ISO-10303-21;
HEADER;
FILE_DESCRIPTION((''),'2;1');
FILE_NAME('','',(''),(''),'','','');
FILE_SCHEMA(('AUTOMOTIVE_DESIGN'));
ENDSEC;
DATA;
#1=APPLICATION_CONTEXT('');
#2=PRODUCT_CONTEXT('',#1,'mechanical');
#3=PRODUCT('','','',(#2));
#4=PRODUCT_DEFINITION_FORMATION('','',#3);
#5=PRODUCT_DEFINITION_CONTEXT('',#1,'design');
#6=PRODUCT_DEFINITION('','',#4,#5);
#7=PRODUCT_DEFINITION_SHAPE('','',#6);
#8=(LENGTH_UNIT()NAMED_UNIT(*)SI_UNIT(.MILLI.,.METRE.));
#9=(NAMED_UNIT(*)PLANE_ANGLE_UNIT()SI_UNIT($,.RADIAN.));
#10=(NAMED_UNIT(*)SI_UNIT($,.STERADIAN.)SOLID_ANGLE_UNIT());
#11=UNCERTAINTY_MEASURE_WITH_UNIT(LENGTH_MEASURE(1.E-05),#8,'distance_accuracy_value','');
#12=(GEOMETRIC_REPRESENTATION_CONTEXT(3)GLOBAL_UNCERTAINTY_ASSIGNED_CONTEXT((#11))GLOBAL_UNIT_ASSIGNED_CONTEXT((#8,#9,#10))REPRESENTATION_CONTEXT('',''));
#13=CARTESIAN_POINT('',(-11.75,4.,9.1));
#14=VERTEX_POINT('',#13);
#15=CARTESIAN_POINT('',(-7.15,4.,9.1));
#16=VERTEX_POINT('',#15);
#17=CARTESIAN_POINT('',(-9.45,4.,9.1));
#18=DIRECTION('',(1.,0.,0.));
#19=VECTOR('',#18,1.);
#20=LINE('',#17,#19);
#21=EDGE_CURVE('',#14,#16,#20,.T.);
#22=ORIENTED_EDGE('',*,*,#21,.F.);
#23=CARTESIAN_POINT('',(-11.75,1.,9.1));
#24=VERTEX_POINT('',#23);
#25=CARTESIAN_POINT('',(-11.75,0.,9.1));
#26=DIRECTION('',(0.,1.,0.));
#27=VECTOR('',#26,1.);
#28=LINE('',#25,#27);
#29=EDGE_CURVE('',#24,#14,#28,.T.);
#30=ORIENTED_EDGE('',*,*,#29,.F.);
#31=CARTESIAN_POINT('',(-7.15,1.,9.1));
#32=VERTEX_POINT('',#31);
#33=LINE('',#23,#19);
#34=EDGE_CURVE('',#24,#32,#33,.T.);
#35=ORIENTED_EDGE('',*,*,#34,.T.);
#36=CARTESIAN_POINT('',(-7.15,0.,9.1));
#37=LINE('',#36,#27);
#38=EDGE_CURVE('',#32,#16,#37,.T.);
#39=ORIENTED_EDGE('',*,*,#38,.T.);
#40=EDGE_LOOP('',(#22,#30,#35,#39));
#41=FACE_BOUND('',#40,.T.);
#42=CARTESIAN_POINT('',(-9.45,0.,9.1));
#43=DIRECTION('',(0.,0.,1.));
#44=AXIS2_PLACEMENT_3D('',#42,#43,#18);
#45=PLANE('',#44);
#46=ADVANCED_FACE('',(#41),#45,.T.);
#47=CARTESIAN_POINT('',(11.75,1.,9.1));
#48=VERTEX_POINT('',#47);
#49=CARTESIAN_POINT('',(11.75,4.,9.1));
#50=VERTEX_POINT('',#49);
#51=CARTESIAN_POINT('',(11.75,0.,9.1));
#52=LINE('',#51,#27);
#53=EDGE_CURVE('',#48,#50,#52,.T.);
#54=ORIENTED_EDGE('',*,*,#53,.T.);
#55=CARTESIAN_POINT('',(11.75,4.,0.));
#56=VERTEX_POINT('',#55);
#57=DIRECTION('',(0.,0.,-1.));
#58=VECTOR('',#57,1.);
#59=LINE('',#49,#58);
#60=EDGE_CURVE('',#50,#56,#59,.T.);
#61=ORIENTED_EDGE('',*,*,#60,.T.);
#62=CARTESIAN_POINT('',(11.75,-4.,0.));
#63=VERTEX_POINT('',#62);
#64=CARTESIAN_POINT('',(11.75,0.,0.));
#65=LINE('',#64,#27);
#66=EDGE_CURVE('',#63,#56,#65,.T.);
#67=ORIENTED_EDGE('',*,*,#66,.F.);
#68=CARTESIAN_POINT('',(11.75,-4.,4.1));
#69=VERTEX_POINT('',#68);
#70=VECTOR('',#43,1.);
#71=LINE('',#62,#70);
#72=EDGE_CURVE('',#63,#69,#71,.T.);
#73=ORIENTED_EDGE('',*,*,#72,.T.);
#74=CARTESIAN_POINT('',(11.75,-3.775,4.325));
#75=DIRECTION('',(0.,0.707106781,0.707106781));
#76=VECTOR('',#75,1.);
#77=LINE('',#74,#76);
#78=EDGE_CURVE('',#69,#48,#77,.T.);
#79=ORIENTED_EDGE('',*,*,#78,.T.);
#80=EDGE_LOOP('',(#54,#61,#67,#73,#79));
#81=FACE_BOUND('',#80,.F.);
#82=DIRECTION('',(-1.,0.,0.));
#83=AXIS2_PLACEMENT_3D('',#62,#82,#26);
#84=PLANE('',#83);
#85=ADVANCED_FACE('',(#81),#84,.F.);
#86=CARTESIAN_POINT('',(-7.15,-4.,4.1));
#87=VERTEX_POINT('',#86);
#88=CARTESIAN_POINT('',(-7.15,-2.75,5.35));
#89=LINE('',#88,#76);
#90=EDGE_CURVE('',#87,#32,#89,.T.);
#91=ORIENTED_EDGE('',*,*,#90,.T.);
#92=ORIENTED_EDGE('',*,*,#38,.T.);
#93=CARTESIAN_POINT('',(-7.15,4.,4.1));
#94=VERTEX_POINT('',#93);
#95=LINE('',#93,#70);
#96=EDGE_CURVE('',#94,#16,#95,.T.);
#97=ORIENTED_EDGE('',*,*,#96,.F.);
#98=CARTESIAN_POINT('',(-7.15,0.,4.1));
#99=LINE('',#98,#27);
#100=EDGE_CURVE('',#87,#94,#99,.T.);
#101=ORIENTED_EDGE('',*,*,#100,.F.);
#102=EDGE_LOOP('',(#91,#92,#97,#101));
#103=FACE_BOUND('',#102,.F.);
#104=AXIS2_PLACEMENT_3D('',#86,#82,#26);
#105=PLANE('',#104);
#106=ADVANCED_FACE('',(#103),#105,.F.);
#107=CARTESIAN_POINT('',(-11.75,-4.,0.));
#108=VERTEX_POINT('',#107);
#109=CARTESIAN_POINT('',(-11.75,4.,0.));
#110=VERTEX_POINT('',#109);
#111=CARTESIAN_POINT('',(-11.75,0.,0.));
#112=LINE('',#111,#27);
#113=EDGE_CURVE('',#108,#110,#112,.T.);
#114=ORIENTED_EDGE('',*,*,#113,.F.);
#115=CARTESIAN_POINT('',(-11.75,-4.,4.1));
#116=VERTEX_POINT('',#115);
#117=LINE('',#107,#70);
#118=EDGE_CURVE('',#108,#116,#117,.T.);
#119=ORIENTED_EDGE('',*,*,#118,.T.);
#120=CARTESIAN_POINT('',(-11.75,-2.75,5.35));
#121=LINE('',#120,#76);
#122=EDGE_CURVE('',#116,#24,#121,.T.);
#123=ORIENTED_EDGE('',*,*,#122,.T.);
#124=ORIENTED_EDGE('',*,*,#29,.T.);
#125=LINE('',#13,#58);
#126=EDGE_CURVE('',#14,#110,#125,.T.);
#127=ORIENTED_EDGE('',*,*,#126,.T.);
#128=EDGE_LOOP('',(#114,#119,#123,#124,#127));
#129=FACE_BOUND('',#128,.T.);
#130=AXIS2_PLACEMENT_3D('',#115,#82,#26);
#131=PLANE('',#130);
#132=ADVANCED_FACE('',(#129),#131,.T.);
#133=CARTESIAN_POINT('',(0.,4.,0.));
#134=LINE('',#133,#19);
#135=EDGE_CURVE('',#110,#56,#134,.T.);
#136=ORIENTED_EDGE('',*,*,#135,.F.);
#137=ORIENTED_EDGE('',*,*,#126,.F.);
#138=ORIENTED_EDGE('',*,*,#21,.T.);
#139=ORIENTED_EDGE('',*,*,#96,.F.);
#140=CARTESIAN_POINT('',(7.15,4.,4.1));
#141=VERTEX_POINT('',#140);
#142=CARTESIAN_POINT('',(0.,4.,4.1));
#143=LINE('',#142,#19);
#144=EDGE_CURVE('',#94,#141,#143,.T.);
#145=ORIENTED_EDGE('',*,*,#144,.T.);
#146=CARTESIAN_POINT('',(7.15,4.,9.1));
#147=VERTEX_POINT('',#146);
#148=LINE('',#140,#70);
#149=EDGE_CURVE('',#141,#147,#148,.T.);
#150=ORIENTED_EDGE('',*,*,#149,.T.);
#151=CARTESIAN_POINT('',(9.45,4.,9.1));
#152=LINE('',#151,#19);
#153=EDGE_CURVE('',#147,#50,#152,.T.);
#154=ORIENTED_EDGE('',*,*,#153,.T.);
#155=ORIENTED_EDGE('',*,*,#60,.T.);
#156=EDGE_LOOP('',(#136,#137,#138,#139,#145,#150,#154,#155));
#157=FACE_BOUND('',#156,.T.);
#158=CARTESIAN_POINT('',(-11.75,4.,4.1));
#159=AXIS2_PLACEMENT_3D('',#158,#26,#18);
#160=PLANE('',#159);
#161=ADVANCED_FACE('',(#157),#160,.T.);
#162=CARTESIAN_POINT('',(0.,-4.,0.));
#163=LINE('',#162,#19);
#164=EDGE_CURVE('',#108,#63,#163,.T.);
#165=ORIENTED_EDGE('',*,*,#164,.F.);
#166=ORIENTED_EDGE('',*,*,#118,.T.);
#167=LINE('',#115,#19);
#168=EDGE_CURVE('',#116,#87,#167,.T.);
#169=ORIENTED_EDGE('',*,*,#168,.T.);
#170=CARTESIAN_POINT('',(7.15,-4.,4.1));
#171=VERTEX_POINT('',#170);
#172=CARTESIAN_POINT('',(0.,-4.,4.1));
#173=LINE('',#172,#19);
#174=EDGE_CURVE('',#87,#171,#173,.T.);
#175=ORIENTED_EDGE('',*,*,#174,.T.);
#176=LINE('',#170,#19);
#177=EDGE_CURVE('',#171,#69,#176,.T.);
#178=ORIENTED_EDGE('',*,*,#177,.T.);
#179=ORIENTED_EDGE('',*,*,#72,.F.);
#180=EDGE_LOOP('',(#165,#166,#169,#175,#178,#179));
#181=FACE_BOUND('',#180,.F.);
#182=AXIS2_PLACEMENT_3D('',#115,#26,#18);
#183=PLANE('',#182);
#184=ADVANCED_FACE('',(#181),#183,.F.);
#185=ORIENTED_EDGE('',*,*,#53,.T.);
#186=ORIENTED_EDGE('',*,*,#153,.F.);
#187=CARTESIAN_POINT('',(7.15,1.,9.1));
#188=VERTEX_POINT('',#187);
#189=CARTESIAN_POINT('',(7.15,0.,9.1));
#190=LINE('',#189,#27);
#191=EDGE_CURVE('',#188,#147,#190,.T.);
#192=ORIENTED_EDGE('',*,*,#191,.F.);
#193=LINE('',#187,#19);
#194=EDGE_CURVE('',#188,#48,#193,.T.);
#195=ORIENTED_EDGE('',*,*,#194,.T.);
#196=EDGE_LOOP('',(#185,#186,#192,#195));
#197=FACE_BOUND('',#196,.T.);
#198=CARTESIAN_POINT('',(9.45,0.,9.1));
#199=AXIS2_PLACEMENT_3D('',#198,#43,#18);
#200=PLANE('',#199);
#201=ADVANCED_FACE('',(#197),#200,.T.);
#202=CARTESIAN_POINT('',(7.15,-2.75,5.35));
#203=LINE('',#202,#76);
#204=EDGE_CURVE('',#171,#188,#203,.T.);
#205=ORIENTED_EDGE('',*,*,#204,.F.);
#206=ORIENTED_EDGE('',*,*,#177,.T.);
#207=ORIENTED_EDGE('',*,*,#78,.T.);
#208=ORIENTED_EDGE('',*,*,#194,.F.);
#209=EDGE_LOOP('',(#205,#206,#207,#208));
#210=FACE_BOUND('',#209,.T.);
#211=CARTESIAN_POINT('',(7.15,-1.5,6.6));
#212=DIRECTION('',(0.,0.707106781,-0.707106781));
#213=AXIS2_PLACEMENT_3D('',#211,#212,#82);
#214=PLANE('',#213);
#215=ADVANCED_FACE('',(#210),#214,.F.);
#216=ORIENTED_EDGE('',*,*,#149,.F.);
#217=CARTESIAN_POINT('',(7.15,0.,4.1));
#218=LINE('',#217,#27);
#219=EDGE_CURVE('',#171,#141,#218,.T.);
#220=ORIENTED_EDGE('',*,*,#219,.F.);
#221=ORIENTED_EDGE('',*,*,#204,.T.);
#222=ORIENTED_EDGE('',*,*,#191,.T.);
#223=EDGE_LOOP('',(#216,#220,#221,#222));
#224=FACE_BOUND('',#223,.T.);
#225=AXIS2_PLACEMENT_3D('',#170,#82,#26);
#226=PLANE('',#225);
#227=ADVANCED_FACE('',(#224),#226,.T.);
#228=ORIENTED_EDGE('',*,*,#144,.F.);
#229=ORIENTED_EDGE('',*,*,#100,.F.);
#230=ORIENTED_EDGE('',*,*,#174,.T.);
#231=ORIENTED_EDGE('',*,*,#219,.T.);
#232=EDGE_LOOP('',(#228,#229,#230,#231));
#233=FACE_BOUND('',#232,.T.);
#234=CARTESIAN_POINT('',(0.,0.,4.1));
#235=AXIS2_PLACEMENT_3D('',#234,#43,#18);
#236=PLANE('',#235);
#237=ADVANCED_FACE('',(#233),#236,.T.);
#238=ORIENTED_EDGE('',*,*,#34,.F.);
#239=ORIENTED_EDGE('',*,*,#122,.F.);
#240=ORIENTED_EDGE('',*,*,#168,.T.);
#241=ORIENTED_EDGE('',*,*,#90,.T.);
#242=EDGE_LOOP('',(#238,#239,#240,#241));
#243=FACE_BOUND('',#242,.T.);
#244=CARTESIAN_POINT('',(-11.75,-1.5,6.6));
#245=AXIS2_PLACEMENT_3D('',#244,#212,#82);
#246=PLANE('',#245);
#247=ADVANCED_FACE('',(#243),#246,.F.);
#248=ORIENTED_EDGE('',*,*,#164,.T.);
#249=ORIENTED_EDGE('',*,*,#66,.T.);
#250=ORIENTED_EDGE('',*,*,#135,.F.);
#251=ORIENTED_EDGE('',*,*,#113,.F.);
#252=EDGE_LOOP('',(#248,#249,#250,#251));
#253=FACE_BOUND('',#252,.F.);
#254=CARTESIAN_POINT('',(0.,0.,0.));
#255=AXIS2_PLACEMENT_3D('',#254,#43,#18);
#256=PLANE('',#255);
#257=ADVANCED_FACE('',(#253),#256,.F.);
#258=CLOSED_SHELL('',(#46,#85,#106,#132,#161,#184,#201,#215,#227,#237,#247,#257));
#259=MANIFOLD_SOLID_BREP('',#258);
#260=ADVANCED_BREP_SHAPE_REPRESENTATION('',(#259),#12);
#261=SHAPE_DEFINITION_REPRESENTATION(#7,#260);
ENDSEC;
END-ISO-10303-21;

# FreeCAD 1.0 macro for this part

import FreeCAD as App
import Part
import Sketcher

V = App.Vector
Q = App.Units.Quantity


def edges_at(feature, points):
    """Names of the edges that pass closest to the given points."""
    edges = feature.Shape.Edges
    near = lambda p: min(range(len(edges)), key=lambda i: edges[i].distToShape(Part.Vertex(*p))[0])
    return sorted({f"Edge{near(p) + 1}" for p in points})


def add_polygon(sketch, points):
    """Adds a closed chain of lines whose ends are joined by coincident constraints."""
    first, n = sketch.GeometryCount, len(points)
    for a, b in zip(points, points[1:] + points[:1]):
        sketch.addGeometry(Part.LineSegment(App.Vector(*a, 0), App.Vector(*b, 0)), False)
    for i in range(n):
        sketch.addConstraint(Sketcher.Constraint("Coincident", first + i, 2, first + (i + 1) % n, 1))

doc = App.newDocument("Part")
params = doc.addObject("Spreadsheet::Sheet", "Params")
for row, (alias, value) in enumerate([
    ("sketch1_height", "8 mm"),
    ("sketch1_width", "23.5 mm"),
    ("pad1_length", "4.1 mm"),
    ("sketch2_height", "8 mm"),
    ("sketch2_width", "4.6 mm"),
    ("pad2_length", "5 mm"),
    ("chamfer_size", "5 mm"),
], start=1):
    params.set(f"A{row}", alias)
    params.set(f"B{row}", "=" + value)
    params.setAlias(f"B{row}", alias)

body = doc.addObject("PartDesign::Body", "Body")

sketch1 = doc.addObject("Sketcher::SketchObject", "Sketch")
body.addObject(sketch1)
sketch1.AttachmentSupport = (doc.XY_Plane, [""])
sketch1.MapMode = "FlatFace"
add_polygon(sketch1, [(-12, 4), (-12, -4), (12, -4), (12, 4)])
sketch1.addConstraint([
    Sketcher.Constraint("Vertical", 0),
    Sketcher.Constraint("Horizontal", 1),
    Sketcher.Constraint("Vertical", 2),
    Sketcher.Constraint("Horizontal", 3),
    Sketcher.Constraint("Symmetric", 0, 2, 2, 2, -1, 1),
    Sketcher.Constraint("DistanceY", 0, 2, 0, 1, Q("8 mm")),
    Sketcher.Constraint("DistanceX", 1, 1, 1, 2, Q("23.5 mm")),
])
sketch1.setExpression("Constraints[9]", "Params.sketch1_height")
sketch1.setExpression("Constraints[10]", "Params.sketch1_width")
pad1 = doc.addObject("PartDesign::Pad", "Pad")
body.addObject(pad1)
pad1.Profile = sketch1
pad1.setExpression("Length", "Params.pad1_length")

sketch2 = doc.addObject("Sketcher::SketchObject", "Sketch001")
body.addObject(sketch2)
sketch2.AttachmentSupport = (doc.XY_Plane, [""])
sketch2.MapMode = "FlatFace"
sketch2.AttachmentOffset = App.Placement(V(0, 0, 4.1), App.Rotation())
add_polygon(sketch2, [(-11.8, 4), (-11.8, -4), (-7.2, -4), (-7.2, 4)])
add_polygon(sketch2, [(7.2, 4), (7.2, -4), (11.8, -4), (11.8, 4)])
sketch2.addConstraint([
    Sketcher.Constraint("Vertical", 0),
    Sketcher.Constraint("Horizontal", 1),
    Sketcher.Constraint("Vertical", 2),
    Sketcher.Constraint("Horizontal", 3),
    Sketcher.Constraint("Vertical", 4),
    Sketcher.Constraint("Horizontal", 5),
    Sketcher.Constraint("Vertical", 6),
    Sketcher.Constraint("Horizontal", 7),
    Sketcher.Constraint("Symmetric", 2, 2, 4, 2, -1, 1),
    Sketcher.Constraint("Symmetric", 0, 2, 6, 2, -1, 1),
    Sketcher.Constraint("Horizontal", 1, 2, 4, 2),
    Sketcher.Constraint("DistanceY", 0, 2, 0, 1, Q("8 mm")),
    Sketcher.Constraint("DistanceX", 1, 1, 1, 2, Q("4.6 mm")),
    Sketcher.Constraint("DistanceX", 1, 2, 4, 2, Q("14.3 mm")),
])
sketch2.setExpression("Constraints[19]", "Params.sketch2_height")
sketch2.setExpression("Constraints[20]", "Params.sketch2_width")
pad2 = doc.addObject("PartDesign::Pad", "Pad001")
body.addObject(pad2)
pad2.Profile = sketch2
pad2.setExpression("Length", "Params.pad2_length")
doc.recompute()

chamfer = doc.addObject("PartDesign::Chamfer", "Chamfer")
body.addObject(chamfer)
chamfer.Base = (pad2, edges_at(pad2, [(-9.45, -4, 9.1), (9.45, -4, 9.1)]))
chamfer.setExpression("Size", "Params.chamfer_size")

doc.recompute()
